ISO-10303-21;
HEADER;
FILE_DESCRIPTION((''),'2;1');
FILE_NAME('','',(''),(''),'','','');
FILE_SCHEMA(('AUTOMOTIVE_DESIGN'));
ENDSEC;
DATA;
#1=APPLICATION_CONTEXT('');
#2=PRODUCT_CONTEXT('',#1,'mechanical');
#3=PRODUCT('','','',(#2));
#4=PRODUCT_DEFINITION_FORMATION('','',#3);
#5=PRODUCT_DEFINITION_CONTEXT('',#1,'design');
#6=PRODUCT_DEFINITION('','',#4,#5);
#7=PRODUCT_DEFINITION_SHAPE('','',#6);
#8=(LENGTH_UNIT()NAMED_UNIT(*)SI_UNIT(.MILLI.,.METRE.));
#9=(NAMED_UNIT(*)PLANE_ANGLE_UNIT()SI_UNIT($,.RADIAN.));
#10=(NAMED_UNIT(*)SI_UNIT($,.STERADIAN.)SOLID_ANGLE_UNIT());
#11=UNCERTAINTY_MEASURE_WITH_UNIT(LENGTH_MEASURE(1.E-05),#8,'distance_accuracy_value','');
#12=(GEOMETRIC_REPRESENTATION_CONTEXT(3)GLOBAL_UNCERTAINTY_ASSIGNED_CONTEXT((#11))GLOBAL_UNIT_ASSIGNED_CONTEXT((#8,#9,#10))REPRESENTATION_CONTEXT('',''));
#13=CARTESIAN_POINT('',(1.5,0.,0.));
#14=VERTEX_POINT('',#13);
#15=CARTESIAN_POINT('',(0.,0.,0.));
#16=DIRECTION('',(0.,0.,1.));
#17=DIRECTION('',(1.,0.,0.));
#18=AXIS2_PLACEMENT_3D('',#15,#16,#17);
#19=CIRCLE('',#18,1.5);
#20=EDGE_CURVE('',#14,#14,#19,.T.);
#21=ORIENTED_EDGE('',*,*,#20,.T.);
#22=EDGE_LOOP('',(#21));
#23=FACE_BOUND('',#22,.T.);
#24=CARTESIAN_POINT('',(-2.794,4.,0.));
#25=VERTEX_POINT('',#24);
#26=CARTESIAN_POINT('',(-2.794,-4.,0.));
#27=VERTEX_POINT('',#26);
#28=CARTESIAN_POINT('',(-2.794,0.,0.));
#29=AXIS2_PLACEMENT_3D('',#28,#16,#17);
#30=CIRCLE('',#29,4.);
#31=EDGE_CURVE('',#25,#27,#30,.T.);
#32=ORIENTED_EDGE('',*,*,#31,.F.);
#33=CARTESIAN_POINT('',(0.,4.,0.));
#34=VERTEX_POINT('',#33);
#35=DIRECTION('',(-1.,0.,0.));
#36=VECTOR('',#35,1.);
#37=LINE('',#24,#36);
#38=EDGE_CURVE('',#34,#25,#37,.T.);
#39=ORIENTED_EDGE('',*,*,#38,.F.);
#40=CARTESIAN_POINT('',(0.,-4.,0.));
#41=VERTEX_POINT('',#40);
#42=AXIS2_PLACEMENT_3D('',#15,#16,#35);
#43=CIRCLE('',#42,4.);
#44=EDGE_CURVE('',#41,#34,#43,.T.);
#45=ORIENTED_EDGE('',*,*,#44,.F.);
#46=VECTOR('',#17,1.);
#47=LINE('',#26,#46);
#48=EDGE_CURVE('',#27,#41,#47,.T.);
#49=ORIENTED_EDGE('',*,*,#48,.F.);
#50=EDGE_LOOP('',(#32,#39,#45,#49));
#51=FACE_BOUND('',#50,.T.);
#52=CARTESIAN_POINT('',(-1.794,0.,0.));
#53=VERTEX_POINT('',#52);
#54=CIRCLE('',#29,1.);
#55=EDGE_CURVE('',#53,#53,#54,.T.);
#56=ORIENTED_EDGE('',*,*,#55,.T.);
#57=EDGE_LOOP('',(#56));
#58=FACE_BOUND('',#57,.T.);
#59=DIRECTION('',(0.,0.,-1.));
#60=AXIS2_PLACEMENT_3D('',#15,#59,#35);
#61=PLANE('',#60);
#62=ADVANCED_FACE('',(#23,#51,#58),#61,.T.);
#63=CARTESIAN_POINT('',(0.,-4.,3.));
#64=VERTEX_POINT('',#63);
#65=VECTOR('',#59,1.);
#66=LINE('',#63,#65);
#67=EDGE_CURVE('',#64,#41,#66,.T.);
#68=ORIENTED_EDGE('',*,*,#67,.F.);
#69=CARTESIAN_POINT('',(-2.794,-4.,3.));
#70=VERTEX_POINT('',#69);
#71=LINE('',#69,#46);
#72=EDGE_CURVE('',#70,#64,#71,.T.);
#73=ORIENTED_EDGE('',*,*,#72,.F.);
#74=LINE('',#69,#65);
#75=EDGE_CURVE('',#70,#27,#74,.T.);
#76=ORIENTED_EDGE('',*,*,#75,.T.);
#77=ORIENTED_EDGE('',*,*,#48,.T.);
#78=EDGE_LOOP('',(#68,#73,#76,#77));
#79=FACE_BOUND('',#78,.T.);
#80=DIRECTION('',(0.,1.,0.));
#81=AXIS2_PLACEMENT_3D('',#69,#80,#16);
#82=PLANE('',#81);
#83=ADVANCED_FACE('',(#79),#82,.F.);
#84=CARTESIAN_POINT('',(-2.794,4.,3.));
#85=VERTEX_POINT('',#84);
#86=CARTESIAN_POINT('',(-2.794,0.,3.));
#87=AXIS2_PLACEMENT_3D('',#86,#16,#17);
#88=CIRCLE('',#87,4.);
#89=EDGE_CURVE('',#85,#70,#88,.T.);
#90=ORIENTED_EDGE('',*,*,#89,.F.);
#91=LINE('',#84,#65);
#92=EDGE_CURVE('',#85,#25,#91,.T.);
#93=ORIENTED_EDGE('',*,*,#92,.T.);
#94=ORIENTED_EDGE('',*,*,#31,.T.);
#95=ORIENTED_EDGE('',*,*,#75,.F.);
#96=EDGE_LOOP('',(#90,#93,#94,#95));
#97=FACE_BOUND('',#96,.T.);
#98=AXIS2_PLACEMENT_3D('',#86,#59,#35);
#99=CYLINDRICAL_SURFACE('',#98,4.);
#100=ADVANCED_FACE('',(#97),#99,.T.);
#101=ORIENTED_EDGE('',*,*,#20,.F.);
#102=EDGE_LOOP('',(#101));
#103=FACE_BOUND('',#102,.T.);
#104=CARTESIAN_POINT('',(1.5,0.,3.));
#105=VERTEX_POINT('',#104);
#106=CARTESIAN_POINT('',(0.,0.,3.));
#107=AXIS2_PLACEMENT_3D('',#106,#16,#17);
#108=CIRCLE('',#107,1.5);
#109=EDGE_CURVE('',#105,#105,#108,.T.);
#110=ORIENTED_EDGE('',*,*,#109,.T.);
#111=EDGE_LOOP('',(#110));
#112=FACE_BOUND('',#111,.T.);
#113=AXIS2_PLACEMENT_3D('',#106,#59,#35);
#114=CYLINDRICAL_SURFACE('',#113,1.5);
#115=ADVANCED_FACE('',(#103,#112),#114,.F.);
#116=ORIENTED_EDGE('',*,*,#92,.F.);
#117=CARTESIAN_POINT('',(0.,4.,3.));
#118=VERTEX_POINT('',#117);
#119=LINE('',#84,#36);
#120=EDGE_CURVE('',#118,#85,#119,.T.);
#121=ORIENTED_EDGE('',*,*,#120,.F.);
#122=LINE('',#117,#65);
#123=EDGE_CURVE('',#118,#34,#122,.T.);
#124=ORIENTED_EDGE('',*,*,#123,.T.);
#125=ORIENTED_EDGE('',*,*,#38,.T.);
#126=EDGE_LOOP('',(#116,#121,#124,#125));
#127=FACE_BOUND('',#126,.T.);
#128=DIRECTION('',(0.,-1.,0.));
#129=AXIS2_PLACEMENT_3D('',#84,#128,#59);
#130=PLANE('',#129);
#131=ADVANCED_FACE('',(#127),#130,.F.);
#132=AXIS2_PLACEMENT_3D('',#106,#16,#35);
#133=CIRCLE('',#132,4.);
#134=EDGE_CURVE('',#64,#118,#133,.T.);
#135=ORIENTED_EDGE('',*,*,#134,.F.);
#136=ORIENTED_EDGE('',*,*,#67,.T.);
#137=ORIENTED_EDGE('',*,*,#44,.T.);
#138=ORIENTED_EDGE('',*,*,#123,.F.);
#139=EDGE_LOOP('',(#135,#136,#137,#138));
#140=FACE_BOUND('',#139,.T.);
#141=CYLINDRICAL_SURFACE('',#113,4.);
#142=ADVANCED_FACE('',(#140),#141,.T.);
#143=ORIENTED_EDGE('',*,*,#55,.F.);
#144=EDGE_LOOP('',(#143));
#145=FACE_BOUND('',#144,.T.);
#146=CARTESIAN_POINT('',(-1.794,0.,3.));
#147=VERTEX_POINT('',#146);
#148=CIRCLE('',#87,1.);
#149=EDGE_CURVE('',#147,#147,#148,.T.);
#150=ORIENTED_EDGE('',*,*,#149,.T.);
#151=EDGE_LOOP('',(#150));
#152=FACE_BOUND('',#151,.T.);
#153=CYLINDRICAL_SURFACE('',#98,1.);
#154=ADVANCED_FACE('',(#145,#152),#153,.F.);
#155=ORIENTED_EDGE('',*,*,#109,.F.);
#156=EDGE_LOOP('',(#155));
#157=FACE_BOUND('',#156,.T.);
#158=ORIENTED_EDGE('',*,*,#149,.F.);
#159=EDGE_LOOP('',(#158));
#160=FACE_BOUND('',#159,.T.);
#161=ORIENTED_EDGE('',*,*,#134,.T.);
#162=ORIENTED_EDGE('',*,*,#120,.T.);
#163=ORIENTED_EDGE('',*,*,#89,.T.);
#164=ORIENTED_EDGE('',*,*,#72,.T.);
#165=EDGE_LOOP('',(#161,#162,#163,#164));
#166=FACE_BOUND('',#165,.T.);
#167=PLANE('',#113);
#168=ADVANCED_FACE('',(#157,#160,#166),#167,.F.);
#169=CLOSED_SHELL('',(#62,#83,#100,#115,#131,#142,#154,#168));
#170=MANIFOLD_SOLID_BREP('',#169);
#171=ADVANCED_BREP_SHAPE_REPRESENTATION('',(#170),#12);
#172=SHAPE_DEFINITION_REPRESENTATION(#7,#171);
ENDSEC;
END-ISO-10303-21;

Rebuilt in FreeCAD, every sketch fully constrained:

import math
import FreeCAD as App
import Part
import Sketcher

V = App.Vector
Q = App.Units.Quantity

doc = App.newDocument("Part")
body = doc.addObject("PartDesign::Body", "Body")

sketch1 = body.newObject("Sketcher::SketchObject", "Sketch")
sketch1.AttachmentSupport = (doc.getObject("XY_Plane"), [""])
sketch1.MapMode = "FlatFace"
sketch1.addGeometry([
    Part.LineSegment(V(0, 4, 0), V(-2.8, 4, 0)),
    Part.ArcOfCircle(Part.Circle(V(-2.8, 0, 0), V(0, 0, 1), 4), math.radians(90), math.radians(270)),
    Part.LineSegment(V(-2.8, -4, 0), V(0, -4, 0)),
    Part.ArcOfCircle(Part.Circle(V(0, 0, 0), V(0, 0, 1), 4), math.radians(-90), math.radians(90)),
    Part.Circle(V(0, 0, 0), V(0, 0, 1), 1.5),
    Part.Circle(V(-2.8, 0, 0), V(0, 0, 1), 1),
], False)
sketch1.addConstraint([
    Sketcher.Constraint("Tangent", 0, 2, 1, 1),
    Sketcher.Constraint("Tangent", 1, 2, 2, 1),
    Sketcher.Constraint("Tangent", 2, 2, 3, 1),
    Sketcher.Constraint("Tangent", 3, 2, 0, 1),
    Sketcher.Constraint("Horizontal", 0),
    Sketcher.Constraint("Horizontal", 2),
    Sketcher.Constraint("Coincident", 3, 3, -1, 1),
    Sketcher.Constraint("Coincident", 4, 3, -1, 1),
    Sketcher.Constraint("Coincident", 5, 3, 1, 3),
    Sketcher.Constraint("Diameter", 4, Q("3 mm")),
    Sketcher.Constraint("Diameter", 5, Q("2 mm")),
    Sketcher.Constraint("Radius", 1, Q("4 mm")),
    Sketcher.Constraint("DistanceX", 0, 2, 0, 1, Q("2.794 mm")),
])
pad1 = body.newObject("PartDesign::Pad", "Pad")
pad1.Profile = sketch1
pad1.Length = 3

doc.recompute()
